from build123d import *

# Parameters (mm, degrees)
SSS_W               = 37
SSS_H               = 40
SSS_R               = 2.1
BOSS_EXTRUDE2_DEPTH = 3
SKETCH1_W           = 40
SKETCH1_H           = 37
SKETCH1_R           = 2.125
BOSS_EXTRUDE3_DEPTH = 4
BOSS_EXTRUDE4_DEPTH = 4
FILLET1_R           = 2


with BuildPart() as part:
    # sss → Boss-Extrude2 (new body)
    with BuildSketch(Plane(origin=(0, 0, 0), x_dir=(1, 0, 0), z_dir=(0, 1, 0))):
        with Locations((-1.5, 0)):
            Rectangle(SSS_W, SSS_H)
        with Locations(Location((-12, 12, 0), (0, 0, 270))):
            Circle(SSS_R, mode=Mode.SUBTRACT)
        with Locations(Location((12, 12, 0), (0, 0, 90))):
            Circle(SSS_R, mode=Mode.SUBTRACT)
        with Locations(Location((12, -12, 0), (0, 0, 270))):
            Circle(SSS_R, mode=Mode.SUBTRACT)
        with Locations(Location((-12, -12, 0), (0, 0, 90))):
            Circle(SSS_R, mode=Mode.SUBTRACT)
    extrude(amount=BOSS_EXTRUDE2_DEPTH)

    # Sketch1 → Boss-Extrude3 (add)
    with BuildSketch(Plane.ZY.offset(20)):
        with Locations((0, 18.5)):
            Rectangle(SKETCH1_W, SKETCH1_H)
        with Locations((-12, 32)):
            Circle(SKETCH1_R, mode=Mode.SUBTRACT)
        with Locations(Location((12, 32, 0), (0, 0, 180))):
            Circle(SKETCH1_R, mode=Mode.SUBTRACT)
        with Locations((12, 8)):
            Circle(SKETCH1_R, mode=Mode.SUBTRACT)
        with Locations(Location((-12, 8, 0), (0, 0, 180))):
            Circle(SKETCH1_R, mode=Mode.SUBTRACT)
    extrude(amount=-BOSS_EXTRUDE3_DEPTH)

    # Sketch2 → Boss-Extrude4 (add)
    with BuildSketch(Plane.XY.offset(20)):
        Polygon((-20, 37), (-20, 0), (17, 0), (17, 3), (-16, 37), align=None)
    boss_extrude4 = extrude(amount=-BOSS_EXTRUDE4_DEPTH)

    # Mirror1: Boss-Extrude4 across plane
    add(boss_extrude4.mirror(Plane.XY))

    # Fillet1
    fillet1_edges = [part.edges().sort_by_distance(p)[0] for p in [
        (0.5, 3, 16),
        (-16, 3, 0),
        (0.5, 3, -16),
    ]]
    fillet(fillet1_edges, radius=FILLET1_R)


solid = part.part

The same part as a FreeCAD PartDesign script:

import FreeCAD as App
import Part
import Sketcher
Q = App.Units.Quantity


def edges_at(feature, points):
    """Names of the edges that pass closest to the given points."""
    edges = feature.Shape.Edges
    near = lambda p: min(range(len(edges)), key=lambda i: edges[i].distToShape(Part.Vertex(*p))[0])
    return sorted({f"Edge{near(p) + 1}" for p in points})


def add_polygon(sketch, points):
    """Adds a closed chain of lines whose ends are joined by coincident constraints."""
    first, n = sketch.GeometryCount, len(points)
    for a, b in zip(points, points[1:] + points[:1]):
        sketch.addGeometry(Part.LineSegment(App.Vector(*a, 0), App.Vector(*b, 0)), False)
    for i in range(n):
        sketch.addConstraint(Sketcher.Constraint("Coincident", first + i, 2, first + (i + 1) % n, 1))

doc = App.newDocument("Part")
body = doc.addObject("PartDesign::Body", "Body")

sketch1 = body.newObject("Sketcher::SketchObject", "Sketch")
sketch1.AttachmentSupport = (doc.getObject("XZ_Plane"), [""])
sketch1.MapMode = "FlatFace"
add_polygon(sketch1, [(-20, -20), (-20, 20), (17, 20), (17, -20)])
sketch1.addGeometry(Part.Circle(App.Vector(-12, 12, 0), App.Vector(0, 0, 1), 2.1), False)
sketch1.addGeometry(Part.Circle(App.Vector(12, 12, 0), App.Vector(0, 0, 1), 2.1), False)
sketch1.addGeometry(Part.Circle(App.Vector(-12, -12, 0), App.Vector(0, 0, 1), 2.1), False)
sketch1.addGeometry(Part.Circle(App.Vector(12, -12, 0), App.Vector(0, 0, 1), 2.1), False)
sketch1.addConstraint([
    Sketcher.Constraint("Vertical", 0),
    Sketcher.Constraint("Horizontal", 1),
    Sketcher.Constraint("Vertical", 2),
    Sketcher.Constraint("Horizontal", 3),
    Sketcher.Constraint("Equal", 4, 5),
    Sketcher.Constraint("Equal", 5, 6),
    Sketcher.Constraint("Equal", 6, 7),
    Sketcher.Constraint("Symmetric", 5, 3, 6, 3, -1, 1),
    Sketcher.Constraint("Symmetric", 4, 3, 7, 3, -1, 1),
    Sketcher.Constraint("Symmetric", 4, 3, 5, 3, -2),
    Sketcher.Constraint("Diameter", 4, Q("4.2 mm")),
    Sketcher.Constraint("DistanceX", 1, 1, 1, 2, Q("37 mm")),
    Sketcher.Constraint("DistanceY", 0, 1, 0, 2, Q("40 mm")),
    Sketcher.Constraint("DistanceX", 4, 3, -1, 1, Q("12 mm")),
    Sketcher.Constraint("DistanceY", -1, 1, 4, 3, Q("12 mm")),
    Sketcher.Constraint("DistanceX", 0, 2, -1, 1, Q("20 mm")),
    Sketcher.Constraint("DistanceY", -1, 1, 0, 2, Q("20 mm")),
])
pad1 = body.newObject("PartDesign::Pad", "Pad")
pad1.Profile = sketch1
pad1.Length = 3
pad1.Reversed = True

sketch2 = body.newObject("Sketcher::SketchObject", "Sketch001")
sketch2.AttachmentSupport = (doc.getObject("YZ_Plane"), [""])
sketch2.MapMode = "FlatFace"
sketch2.AttachmentOffset = App.Placement(App.Vector(0, 0, -20), App.Rotation())
add_polygon(sketch2, [(37, -20), (0, -20), (0, 20), (37, 20)])
sketch2.addGeometry(Part.Circle(App.Vector(8, -12, 0), App.Vector(0, 0, 1), 2.1), False)
sketch2.addGeometry(Part.Circle(App.Vector(8, 12, 0), App.Vector(0, 0, 1), 2.1), False)
sketch2.addGeometry(Part.Circle(App.Vector(32, -12, 0), App.Vector(0, 0, 1), 2.1), False)
sketch2.addGeometry(Part.Circle(App.Vector(32, 12, 0), App.Vector(0, 0, 1), 2.1), False)
sketch2.addConstraint([
    Sketcher.Constraint("Horizontal", 0),
    Sketcher.Constraint("Vertical", 1),
    Sketcher.Constraint("Horizontal", 2),
    Sketcher.Constraint("Vertical", 3),
    Sketcher.Constraint("Equal", 4, 5),
    Sketcher.Constraint("Equal", 5, 6),
    Sketcher.Constraint("Equal", 6, 7),
    Sketcher.Constraint("Symmetric", 0, 2, 1, 2, -1, 1),
    Sketcher.Constraint("Symmetric", 4, 3, 5, 3, -1),
    Sketcher.Constraint("Symmetric", 6, 3, 7, 3, -1),
    Sketcher.Constraint("Horizontal", 4, 3, 6, 3),
    Sketcher.Constraint("Diameter", 4, Q("4.25 mm")),
    Sketcher.Constraint("DistanceX", 0, 2, 0, 1, Q("37 mm")),
    Sketcher.Constraint("DistanceY", 1, 1, 1, 2, Q("40 mm")),
    Sketcher.Constraint("DistanceX", -1, 1, 4, 3, Q("8 mm")),
    Sketcher.Constraint("DistanceY", 4, 3, -1, 1, Q("12 mm")),
    Sketcher.Constraint("DistanceX", -1, 1, 6, 3, Q("32 mm")),
])
pad2 = body.newObject("PartDesign::Pad", "Pad001")
pad2.Profile = sketch2
pad2.Length = 4

sketch3 = body.newObject("Sketcher::SketchObject", "Sketch002")
sketch3.AttachmentSupport = (doc.getObject("XY_Plane"), [""])
sketch3.MapMode = "FlatFace"
sketch3.AttachmentOffset = App.Placement(App.Vector(0, 0, 20), App.Rotation())
add_polygon(sketch3, [(-20, 37), (-20, 0), (17, 0), (17, 3), (-16, 37)])
sketch3.addConstraint([
    Sketcher.Constraint("Vertical", 0),
    Sketcher.Constraint("Horizontal", 1),
    Sketcher.Constraint("Vertical", 2),
    Sketcher.Constraint("Horizontal", 4),
    Sketcher.Constraint("PointOnObject", 0, 2, -1),
    Sketcher.Constraint("Equal", 1, 0),
    Sketcher.Constraint("DistanceX", 1, 1, 1, 2, Q("37 mm")),
    Sketcher.Constraint("DistanceX", 4, 2, 4, 1, Q("4 mm")),
    Sketcher.Constraint("DistanceY", 2, 1, 2, 2, Q("3 mm")),
    Sketcher.Constraint("DistanceX", 0, 2, -1, 1, Q("20 mm")),
])
pad3 = body.newObject("PartDesign::Pad", "Pad002")
pad3.Profile = sketch3
pad3.Length = 4
pad3.Reversed = True
doc.recompute()

mirrored = body.newObject("PartDesign::Mirrored", "Mirrored")
mirrored.Originals = [pad3]
mirrored.MirrorPlane = (doc.getObject("XY_Plane"), [""])
body.Tip = mirrored
doc.recompute()

fillet = body.newObject("PartDesign::Fillet", "Fillet")
fillet.Base = (mirrored, edges_at(mirrored, [(0.5, 3, 16), (-16, 3, 0), (0.5, 3, -16)]))
fillet.Radius = 2

doc.recompute()
